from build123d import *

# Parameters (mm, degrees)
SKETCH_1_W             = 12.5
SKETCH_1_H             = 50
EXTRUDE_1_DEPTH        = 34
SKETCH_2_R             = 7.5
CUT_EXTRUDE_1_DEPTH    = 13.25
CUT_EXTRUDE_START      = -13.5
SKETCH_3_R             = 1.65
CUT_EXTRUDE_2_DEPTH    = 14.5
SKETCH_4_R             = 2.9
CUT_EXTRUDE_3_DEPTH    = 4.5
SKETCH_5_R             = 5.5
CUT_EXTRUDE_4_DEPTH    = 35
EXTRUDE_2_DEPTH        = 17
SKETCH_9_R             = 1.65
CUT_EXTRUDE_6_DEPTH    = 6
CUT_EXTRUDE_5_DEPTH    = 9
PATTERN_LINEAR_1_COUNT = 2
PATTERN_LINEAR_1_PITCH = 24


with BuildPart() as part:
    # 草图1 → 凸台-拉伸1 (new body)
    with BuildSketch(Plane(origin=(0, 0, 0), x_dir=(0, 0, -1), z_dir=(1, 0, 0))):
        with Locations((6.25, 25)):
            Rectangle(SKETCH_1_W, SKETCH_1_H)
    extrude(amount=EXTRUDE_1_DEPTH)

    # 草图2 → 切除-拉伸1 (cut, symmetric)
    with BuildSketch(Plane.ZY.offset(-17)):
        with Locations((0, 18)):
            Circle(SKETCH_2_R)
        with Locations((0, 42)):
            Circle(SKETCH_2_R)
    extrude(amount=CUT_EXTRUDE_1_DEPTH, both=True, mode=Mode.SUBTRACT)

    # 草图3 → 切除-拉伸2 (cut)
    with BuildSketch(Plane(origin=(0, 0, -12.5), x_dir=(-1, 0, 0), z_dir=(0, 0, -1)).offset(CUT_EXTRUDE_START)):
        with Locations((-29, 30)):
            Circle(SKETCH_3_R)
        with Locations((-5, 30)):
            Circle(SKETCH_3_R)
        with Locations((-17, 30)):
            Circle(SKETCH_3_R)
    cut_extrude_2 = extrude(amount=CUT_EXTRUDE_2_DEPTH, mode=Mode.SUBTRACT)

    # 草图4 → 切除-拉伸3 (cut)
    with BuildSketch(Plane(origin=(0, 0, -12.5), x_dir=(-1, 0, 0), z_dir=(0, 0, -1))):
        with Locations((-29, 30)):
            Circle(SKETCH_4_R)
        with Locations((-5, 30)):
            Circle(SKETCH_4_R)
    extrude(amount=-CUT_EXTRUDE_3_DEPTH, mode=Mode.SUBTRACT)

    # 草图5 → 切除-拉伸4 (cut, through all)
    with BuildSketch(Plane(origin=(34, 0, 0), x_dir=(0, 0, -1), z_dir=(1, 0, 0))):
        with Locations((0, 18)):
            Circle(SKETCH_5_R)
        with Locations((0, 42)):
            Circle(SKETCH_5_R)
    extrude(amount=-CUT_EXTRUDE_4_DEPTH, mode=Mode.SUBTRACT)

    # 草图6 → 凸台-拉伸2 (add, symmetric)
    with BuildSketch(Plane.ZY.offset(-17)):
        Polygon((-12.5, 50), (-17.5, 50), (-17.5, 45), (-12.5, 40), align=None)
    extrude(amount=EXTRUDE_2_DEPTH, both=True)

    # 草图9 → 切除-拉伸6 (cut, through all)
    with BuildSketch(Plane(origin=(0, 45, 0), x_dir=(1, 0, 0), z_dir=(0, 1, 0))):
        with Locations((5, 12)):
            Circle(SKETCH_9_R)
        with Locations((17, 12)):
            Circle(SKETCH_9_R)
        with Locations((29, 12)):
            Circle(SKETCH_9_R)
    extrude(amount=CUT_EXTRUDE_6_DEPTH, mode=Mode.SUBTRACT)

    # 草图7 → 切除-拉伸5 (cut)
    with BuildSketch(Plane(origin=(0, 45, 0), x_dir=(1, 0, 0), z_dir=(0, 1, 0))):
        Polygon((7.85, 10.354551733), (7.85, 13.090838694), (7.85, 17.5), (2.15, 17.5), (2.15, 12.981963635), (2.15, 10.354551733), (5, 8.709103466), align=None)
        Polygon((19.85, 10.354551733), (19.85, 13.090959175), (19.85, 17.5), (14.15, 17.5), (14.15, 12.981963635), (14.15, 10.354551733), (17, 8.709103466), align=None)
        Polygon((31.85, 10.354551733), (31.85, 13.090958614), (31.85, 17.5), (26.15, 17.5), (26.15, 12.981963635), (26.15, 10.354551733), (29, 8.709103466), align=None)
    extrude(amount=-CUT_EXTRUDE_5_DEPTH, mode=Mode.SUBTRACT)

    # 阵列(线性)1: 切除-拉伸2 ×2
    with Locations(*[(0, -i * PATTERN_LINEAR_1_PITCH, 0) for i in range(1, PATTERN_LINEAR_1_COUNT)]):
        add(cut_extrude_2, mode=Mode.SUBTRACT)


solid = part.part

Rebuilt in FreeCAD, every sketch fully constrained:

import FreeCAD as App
import Part
import Sketcher

V = App.Vector
Q = App.Units.Quantity


def add_polygon(sketch, points):
    """Adds a closed chain of lines whose ends are joined by coincident constraints."""
    first, n = sketch.GeometryCount, len(points)
    for a, b in zip(points, points[1:] + points[:1]):
        sketch.addGeometry(Part.LineSegment(App.Vector(*a, 0), App.Vector(*b, 0)), False)
    for i in range(n):
        sketch.addConstraint(Sketcher.Constraint("Coincident", first + i, 2, first + (i + 1) % n, 1))

doc = App.newDocument("Part")
body = doc.addObject("PartDesign::Body", "Body")

sketch1 = doc.addObject("Sketcher::SketchObject", "Sketch")
body.addObject(sketch1)
sketch1.AttachmentSupport = (doc.YZ_Plane, [""])
sketch1.MapMode = "FlatFace"
add_polygon(sketch1, [(50, 0), (0, 0), (0, -12), (50, -12)])
sketch1.addConstraint([
    Sketcher.Constraint("Horizontal", 0),
    Sketcher.Constraint("Vertical", 1),
    Sketcher.Constraint("Horizontal", 2),
    Sketcher.Constraint("Vertical", 3),
    Sketcher.Constraint("Coincident", 0, 2, -1, 1),
    Sketcher.Constraint("DistanceX", 0, 2, 0, 1, Q("50 mm")),
    Sketcher.Constraint("DistanceY", 1, 2, 1, 1, Q("12.5 mm")),
])
pad1 = doc.addObject("PartDesign::Pad", "Pad")
body.addObject(pad1)
pad1.Profile = sketch1
pad1.Length = 34

sketch2 = doc.addObject("Sketcher::SketchObject", "Sketch001")
body.addObject(sketch2)
sketch2.AttachmentSupport = (doc.YZ_Plane, [""])
sketch2.MapMode = "FlatFace"
sketch2.AttachmentOffset = App.Placement(V(0, 0, 17), App.Rotation())
sketch2.addGeometry([
    Part.Circle(V(18, 0, 0), V(0, 0, 1), 8),
    Part.Circle(V(42, 0, 0), V(0, 0, 1), 8),
], False)
sketch2.addConstraint([
    Sketcher.Constraint("Equal", 0, 1),
    Sketcher.Constraint("PointOnObject", 0, 3, -1),
    Sketcher.Constraint("PointOnObject", 1, 3, -1),
    Sketcher.Constraint("Diameter", 0, Q("15 mm")),
    Sketcher.Constraint("DistanceX", -1, 1, 0, 3, Q("18 mm")),
    Sketcher.Constraint("DistanceX", -1, 1, 1, 3, Q("42 mm")),
])
pocket1 = doc.addObject("PartDesign::Pocket", "Pocket")
body.addObject(pocket1)
pocket1.Profile = sketch2
pocket1.Length = 26.5
pocket1.Midplane = True

sketch3 = doc.addObject("Sketcher::SketchObject", "Sketch002")
body.addObject(sketch3)
sketch3.AttachmentSupport = (doc.XY_Plane, [""])
sketch3.MapMode = "FlatFace"
sketch3.AttachmentOffset = App.Placement(V(0, 0, 1), App.Rotation())
sketch3.addGeometry([
    Part.Circle(V(29, 30, 0), V(0, 0, 1), 1.6),
    Part.Circle(V(5, 30, 0), V(0, 0, 1), 1.6),
    Part.Circle(V(17, 30, 0), V(0, 0, 1), 1.6),
], False)
sketch3.addConstraint([
    Sketcher.Constraint("Equal", 0, 1),
    Sketcher.Constraint("Equal", 1, 2),
    Sketcher.Constraint("Horizontal", 0, 3, 1, 3),
    Sketcher.Constraint("Horizontal", 1, 3, 2, 3),
    Sketcher.Constraint("Diameter", 0, Q("3.3 mm")),
    Sketcher.Constraint("DistanceX", -1, 1, 0, 3, Q("29 mm")),
    Sketcher.Constraint("DistanceY", -1, 1, 0, 3, Q("30 mm")),
    Sketcher.Constraint("DistanceX", -1, 1, 1, 3, Q("5 mm")),
    Sketcher.Constraint("DistanceX", -1, 1, 2, 3, Q("17 mm")),
])
pocket2 = doc.addObject("PartDesign::Pocket", "Pocket001")
body.addObject(pocket2)
pocket2.Profile = sketch3
pocket2.Length = 14.5

sketch4 = doc.addObject("Sketcher::SketchObject", "Sketch003")
body.addObject(sketch4)
sketch4.AttachmentSupport = (doc.XY_Plane, [""])
sketch4.MapMode = "FlatFace"
sketch4.AttachmentOffset = App.Placement(V(0, 0, -12.5), App.Rotation())
sketch4.addGeometry([
    Part.Circle(V(29, 30, 0), V(0, 0, 1), 2.9),
    Part.Circle(V(5, 30, 0), V(0, 0, 1), 2.9),
], False)
sketch4.addConstraint([
    Sketcher.Constraint("Equal", 0, 1),
    Sketcher.Constraint("Horizontal", 0, 3, 1, 3),
    Sketcher.Constraint("Diameter", 0, Q("5.8 mm")),
    Sketcher.Constraint("DistanceX", -1, 1, 0, 3, Q("29 mm")),
    Sketcher.Constraint("DistanceY", -1, 1, 0, 3, Q("30 mm")),
    Sketcher.Constraint("DistanceX", -1, 1, 1, 3, Q("5 mm")),
])
pocket3 = doc.addObject("PartDesign::Pocket", "Pocket002")
body.addObject(pocket3)
pocket3.Profile = sketch4
pocket3.Length = 4.5
pocket3.Reversed = True

sketch5 = doc.addObject("Sketcher::SketchObject", "Sketch004")
body.addObject(sketch5)
sketch5.AttachmentSupport = (doc.YZ_Plane, [""])
sketch5.MapMode = "FlatFace"
sketch5.AttachmentOffset = App.Placement(V(0, 0, 34), App.Rotation())
sketch5.addGeometry([
    Part.Circle(V(18, 0, 0), V(0, 0, 1), 6),
    Part.Circle(V(42, 0, 0), V(0, 0, 1), 6),
], False)
sketch5.addConstraint([
    Sketcher.Constraint("Equal", 0, 1),
    Sketcher.Constraint("PointOnObject", 0, 3, -1),
    Sketcher.Constraint("PointOnObject", 1, 3, -1),
    Sketcher.Constraint("Diameter", 0, Q("11 mm")),
    Sketcher.Constraint("DistanceX", -1, 1, 0, 3, Q("18 mm")),
    Sketcher.Constraint("DistanceX", -1, 1, 1, 3, Q("42 mm")),
])
pocket4 = doc.addObject("PartDesign::Pocket", "Pocket003")
body.addObject(pocket4)
pocket4.Profile = sketch5
pocket4.Type = "ThroughAll"

sketch6 = doc.addObject("Sketcher::SketchObject", "Sketch005")
body.addObject(sketch6)
sketch6.AttachmentSupport = (doc.YZ_Plane, [""])
sketch6.MapMode = "FlatFace"
sketch6.AttachmentOffset = App.Placement(V(0, 0, 17), App.Rotation())
add_polygon(sketch6, [(50, -12), (50, -18), (45, -18), (40, -12)])
sketch6.addConstraint([
    Sketcher.Constraint("Vertical", 0),
    Sketcher.Constraint("Horizontal", 1),
    Sketcher.Constraint("Horizontal", 3),
    Sketcher.Constraint("Equal", 1, 0),
    Sketcher.Constraint("DistanceX", 1, 2, 1, 1, Q("5 mm")),
    Sketcher.Constraint("DistanceX", 3, 1, 3, 2, Q("10 mm")),
    Sketcher.Constraint("DistanceX", -1, 1, 0, 2, Q("50 mm")),
    Sketcher.Constraint("DistanceY", 0, 2, -1, 1, Q("17.5 mm")),
])
pad2 = doc.addObject("PartDesign::Pad", "Pad001")
body.addObject(pad2)
pad2.Profile = sketch6
pad2.Length = 34
pad2.Midplane = True

sketch7 = doc.addObject("Sketcher::SketchObject", "Sketch006")
body.addObject(sketch7)
sketch7.AttachmentSupport = (doc.XZ_Plane, [""])
sketch7.MapMode = "FlatFace"
sketch7.AttachmentOffset = App.Placement(V(0, 0, -45), App.Rotation())
sketch7.addGeometry([
    Part.Circle(V(5, -12, 0), V(0, 0, 1), 1.6),
    Part.Circle(V(17, -12, 0), V(0, 0, 1), 1.6),
    Part.Circle(V(29, -12, 0), V(0, 0, 1), 1.6),
], False)
sketch7.addConstraint([
    Sketcher.Constraint("Equal", 0, 1),
    Sketcher.Constraint("Equal", 1, 2),
    Sketcher.Constraint("Horizontal", 0, 3, 1, 3),
    Sketcher.Constraint("Horizontal", 1, 3, 2, 3),
    Sketcher.Constraint("Diameter", 0, Q("3.3 mm")),
    Sketcher.Constraint("DistanceX", -1, 1, 0, 3, Q("5 mm")),
    Sketcher.Constraint("DistanceY", 0, 3, -1, 1, Q("12 mm")),
    Sketcher.Constraint("DistanceX", -1, 1, 1, 3, Q("17 mm")),
    Sketcher.Constraint("DistanceX", -1, 1, 2, 3, Q("29 mm")),
])
pocket5 = doc.addObject("PartDesign::Pocket", "Pocket004")
body.addObject(pocket5)
pocket5.Profile = sketch7
pocket5.Type = "ThroughAll"

sketch8 = doc.addObject("Sketcher::SketchObject", "Sketch007")
body.addObject(sketch8)
sketch8.AttachmentSupport = (doc.XZ_Plane, [""])
sketch8.MapMode = "FlatFace"
sketch8.AttachmentOffset = App.Placement(V(0, 0, -45), App.Rotation())
add_polygon(sketch8, [(7.8, -10.4), (7.8, -17.5), (2.1, -17.5), (2.1, -10.4), (5, -8.7)])
add_polygon(sketch8, [(19.9, -10.4), (19.9, -17.5), (14.2, -17.5), (14.2, -10.4), (17, -8.7)])
add_polygon(sketch8, [(31.9, -10.4), (31.9, -17.5), (26.1, -17.5), (26.1, -10.4), (29, -8.7)])
sketch8.addConstraint([
    Sketcher.Constraint("Vertical", 0),
    Sketcher.Constraint("Horizontal", 1),
    Sketcher.Constraint("Vertical", 2),
    Sketcher.Constraint("Vertical", 5),
    Sketcher.Constraint("Horizontal", 6),
    Sketcher.Constraint("Vertical", 7),
    Sketcher.Constraint("Vertical", 10),
    Sketcher.Constraint("Horizontal", 11),
    Sketcher.Constraint("Vertical", 12),
    Sketcher.Constraint("Parallel", 3, 8),
    Sketcher.Constraint("Parallel", 4, 9),
    Sketcher.Constraint("Parallel", 8, 13),
    Sketcher.Constraint("Parallel", 9, 14),
    Sketcher.Constraint("Horizontal", 2, 2, 4, 2),
    Sketcher.Constraint("Horizontal", 1, 2, 5, 2),
    Sketcher.Constraint("Horizontal", 4, 2, 7, 2),
    Sketcher.Constraint("Horizontal", 3, 2, 8, 2),
    Sketcher.Constraint("Horizontal", 7, 2, 9, 2),
    Sketcher.Constraint("Horizontal", 6, 2, 10, 2),
    Sketcher.Constraint("Horizontal", 9, 2, 12, 2),
    Sketcher.Constraint("Horizontal", 8, 2, 13, 2),
    Sketcher.Constraint("Horizontal", 12, 2, 14, 2),
    Sketcher.Constraint("Equal", 3, 4),
    Sketcher.Constraint("Angle", 3, Q("30 deg")),
    Sketcher.Constraint("DistanceX", 1, 2, 1, 1, Q("5.7 mm")),
    Sketcher.Constraint("DistanceX", -1, 1, 3, 2, Q("5 mm")),
    Sketcher.Constraint("DistanceX", -1, 1, 8, 2, Q("17 mm")),
    Sketcher.Constraint("DistanceX", -1, 1, 13, 2, Q("29 mm")),
    Sketcher.Constraint("DistanceY", 0, 2, -1, 1, Q("17.5 mm")),
    Sketcher.Constraint("DistanceY", 0, 2, 0, 1, Q("7.145448 mm")),
])
pocket6 = doc.addObject("PartDesign::Pocket", "Pocket005")
body.addObject(pocket6)
pocket6.Profile = sketch8
pocket6.Length = 9
pocket6.Reversed = True
doc.recompute()

linearpattern = doc.addObject("PartDesign::LinearPattern", "LinearPattern")
body.addObject(linearpattern)
linearpattern.Originals = [pocket2]
linearpattern.Direction = (doc.Y_Axis, [""])
linearpattern.Mode = "offset"
linearpattern.Offset = 24
linearpattern.Occurrences = 2
linearpattern.Reversed = True
body.Tip = linearpattern

doc.recompute()
